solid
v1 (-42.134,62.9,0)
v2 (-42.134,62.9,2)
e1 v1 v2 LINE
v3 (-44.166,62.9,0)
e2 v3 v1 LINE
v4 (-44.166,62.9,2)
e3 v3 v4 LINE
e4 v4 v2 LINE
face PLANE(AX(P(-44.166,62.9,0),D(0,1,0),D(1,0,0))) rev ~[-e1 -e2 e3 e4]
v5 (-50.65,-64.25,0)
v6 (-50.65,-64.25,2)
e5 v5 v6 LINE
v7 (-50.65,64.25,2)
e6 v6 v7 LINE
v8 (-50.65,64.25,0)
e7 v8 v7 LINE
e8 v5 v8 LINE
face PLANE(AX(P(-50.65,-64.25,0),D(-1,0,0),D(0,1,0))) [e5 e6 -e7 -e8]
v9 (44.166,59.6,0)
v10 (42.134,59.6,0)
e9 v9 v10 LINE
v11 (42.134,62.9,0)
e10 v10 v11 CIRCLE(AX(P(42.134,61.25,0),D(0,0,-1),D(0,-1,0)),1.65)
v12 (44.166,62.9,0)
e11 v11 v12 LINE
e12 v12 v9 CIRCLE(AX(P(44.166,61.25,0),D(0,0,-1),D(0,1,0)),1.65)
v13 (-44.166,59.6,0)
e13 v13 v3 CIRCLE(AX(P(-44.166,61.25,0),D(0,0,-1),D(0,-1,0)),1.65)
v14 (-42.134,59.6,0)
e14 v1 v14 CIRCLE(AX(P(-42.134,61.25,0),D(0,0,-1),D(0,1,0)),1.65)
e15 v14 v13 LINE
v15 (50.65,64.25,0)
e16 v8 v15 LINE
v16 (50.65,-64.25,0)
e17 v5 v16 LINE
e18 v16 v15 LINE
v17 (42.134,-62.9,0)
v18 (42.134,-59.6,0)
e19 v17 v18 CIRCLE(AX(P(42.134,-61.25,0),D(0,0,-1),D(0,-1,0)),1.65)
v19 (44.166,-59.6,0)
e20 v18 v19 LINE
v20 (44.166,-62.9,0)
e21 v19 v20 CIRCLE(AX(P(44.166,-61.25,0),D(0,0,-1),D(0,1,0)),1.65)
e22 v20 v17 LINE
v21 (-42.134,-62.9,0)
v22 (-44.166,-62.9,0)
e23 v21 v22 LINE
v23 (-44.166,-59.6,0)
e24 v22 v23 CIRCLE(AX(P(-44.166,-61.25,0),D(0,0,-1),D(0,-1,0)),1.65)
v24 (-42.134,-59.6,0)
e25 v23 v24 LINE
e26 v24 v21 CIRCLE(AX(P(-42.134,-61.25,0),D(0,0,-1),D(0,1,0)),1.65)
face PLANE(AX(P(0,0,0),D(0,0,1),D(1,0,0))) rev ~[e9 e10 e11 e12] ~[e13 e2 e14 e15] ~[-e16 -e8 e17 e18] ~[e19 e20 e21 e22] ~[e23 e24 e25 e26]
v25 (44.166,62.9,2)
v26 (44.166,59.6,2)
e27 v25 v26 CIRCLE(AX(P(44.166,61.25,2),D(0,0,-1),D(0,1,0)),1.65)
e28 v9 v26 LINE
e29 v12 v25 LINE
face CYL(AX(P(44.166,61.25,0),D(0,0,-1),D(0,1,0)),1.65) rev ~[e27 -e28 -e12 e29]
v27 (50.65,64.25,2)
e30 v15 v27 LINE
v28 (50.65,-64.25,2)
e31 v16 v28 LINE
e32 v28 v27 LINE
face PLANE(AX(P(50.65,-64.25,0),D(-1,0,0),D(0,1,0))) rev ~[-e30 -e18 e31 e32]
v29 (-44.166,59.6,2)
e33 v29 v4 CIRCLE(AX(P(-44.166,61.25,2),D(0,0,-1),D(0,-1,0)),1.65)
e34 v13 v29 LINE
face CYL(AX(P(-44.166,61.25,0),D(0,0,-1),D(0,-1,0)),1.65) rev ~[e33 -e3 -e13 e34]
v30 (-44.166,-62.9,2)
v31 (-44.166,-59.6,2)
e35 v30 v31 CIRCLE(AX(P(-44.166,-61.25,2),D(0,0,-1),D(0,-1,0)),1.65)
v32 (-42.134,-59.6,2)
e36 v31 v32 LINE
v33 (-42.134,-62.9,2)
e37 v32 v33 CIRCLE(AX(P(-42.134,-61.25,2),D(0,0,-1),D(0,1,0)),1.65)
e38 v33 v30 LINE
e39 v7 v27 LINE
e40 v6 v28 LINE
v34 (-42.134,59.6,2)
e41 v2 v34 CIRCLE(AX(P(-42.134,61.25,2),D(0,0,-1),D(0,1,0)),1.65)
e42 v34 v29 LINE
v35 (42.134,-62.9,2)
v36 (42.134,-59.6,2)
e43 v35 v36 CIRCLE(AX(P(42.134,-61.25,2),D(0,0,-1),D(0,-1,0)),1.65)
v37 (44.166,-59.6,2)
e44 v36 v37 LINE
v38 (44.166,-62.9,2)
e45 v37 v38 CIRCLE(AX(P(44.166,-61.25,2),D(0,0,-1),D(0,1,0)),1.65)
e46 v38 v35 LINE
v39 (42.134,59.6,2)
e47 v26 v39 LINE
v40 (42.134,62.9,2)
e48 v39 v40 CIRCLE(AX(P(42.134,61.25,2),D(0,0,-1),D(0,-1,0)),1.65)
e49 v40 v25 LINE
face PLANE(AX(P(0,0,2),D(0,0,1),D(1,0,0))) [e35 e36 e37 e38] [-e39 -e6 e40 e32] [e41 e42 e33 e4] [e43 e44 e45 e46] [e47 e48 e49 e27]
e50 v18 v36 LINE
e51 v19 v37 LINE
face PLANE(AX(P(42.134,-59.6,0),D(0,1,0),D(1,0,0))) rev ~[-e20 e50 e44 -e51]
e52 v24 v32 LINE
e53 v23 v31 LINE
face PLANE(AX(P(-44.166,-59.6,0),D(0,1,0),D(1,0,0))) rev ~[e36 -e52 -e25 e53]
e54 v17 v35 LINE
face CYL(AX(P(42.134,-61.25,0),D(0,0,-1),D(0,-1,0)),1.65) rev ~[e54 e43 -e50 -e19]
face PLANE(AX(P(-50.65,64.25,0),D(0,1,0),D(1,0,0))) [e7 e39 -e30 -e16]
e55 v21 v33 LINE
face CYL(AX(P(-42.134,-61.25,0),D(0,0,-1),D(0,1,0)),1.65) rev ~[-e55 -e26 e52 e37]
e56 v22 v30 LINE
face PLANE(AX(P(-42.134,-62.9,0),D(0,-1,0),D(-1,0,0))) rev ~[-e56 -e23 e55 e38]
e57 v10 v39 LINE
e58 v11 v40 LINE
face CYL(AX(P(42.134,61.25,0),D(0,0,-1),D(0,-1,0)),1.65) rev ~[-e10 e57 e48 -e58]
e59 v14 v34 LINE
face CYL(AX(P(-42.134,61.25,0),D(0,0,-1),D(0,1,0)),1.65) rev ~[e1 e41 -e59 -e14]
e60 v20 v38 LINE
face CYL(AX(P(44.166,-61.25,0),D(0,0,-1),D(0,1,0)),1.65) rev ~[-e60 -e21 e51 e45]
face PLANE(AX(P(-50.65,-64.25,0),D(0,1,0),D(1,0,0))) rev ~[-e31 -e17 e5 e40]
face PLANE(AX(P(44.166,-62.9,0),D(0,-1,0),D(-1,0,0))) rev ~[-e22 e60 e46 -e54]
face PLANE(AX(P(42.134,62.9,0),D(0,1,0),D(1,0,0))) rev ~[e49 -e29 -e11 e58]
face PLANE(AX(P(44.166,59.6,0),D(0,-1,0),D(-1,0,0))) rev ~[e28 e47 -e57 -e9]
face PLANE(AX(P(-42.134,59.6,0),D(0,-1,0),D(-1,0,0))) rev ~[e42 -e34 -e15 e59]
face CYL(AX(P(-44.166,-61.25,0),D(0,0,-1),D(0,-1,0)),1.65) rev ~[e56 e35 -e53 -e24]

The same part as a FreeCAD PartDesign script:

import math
import FreeCAD as App
import Part
import Sketcher
from FreeCAD import Vector
Q = App.Units.Quantity

doc = App.newDocument("Part")
body = doc.addObject("PartDesign::Body", "Body")

# Sketch on XY plane
sketch1 = body.newObject("Sketcher::SketchObject", "Sketch")
sketch1.AttachmentSupport = (doc.getObject("XY_Plane"), [""])
sketch1.MapMode = "FlatFace"
sketch1.addGeometry(Part.LineSegment(Vector(-50.65, 64.25, 0), Vector(-50.65, -64.25, 0)), False)
sketch1.addGeometry(Part.LineSegment(Vector(-50.65, -64.25, 0), Vector(50.65, -64.25, 0)), False)
sketch1.addGeometry(Part.LineSegment(Vector(50.65, -64.25, 0), Vector(50.65, 64.25, 0)), False)
sketch1.addGeometry(Part.LineSegment(Vector(50.65, 64.25, 0), Vector(-50.65, 64.25, 0)), False)
sketch1.addGeometry(Part.ArcOfCircle(Part.Circle(Vector(-44.166, -61.25, 0), Vector(0, 0, 1), 1.65), math.radians(90), math.radians(270)), False)
sketch1.addGeometry(Part.LineSegment(Vector(-44.166, -59.6, 0), Vector(-42.134, -59.6, 0)), False)
sketch1.addGeometry(Part.ArcOfCircle(Part.Circle(Vector(-42.134, -61.25, 0), Vector(0, 0, 1), 1.65), math.radians(-90), math.radians(90)), False)
sketch1.addGeometry(Part.LineSegment(Vector(-42.134, -62.9, 0), Vector(-44.166, -62.9, 0)), False)
sketch1.addGeometry(Part.ArcOfCircle(Part.Circle(Vector(42.134, -61.25, 0), Vector(0, 0, 1), 1.65), math.radians(90), math.radians(270)), False)
sketch1.addGeometry(Part.LineSegment(Vector(42.134, -59.6, 0), Vector(44.166, -59.6, 0)), False)
sketch1.addGeometry(Part.ArcOfCircle(Part.Circle(Vector(44.166, -61.25, 0), Vector(0, 0, 1), 1.65), math.radians(-90), math.radians(90)), False)
sketch1.addGeometry(Part.LineSegment(Vector(44.166, -62.9, 0), Vector(42.134, -62.9, 0)), False)
sketch1.addGeometry(Part.ArcOfCircle(Part.Circle(Vector(-44.166, 61.25, 0), Vector(0, 0, 1), 1.65), math.radians(90), math.radians(270)), False)
sketch1.addGeometry(Part.LineSegment(Vector(-44.166, 62.9, 0), Vector(-42.134, 62.9, 0)), False)
sketch1.addGeometry(Part.ArcOfCircle(Part.Circle(Vector(-42.134, 61.25, 0), Vector(0, 0, 1), 1.65), math.radians(-90), math.radians(90)), False)
sketch1.addGeometry(Part.LineSegment(Vector(-42.134, 59.6, 0), Vector(-44.166, 59.6, 0)), False)
sketch1.addGeometry(Part.ArcOfCircle(Part.Circle(Vector(42.134, 61.25, 0), Vector(0, 0, 1), 1.65), math.radians(90), math.radians(270)), False)
sketch1.addGeometry(Part.LineSegment(Vector(42.134, 62.9, 0), Vector(44.166, 62.9, 0)), False)
sketch1.addGeometry(Part.ArcOfCircle(Part.Circle(Vector(44.166, 61.25, 0), Vector(0, 0, 1), 1.65), math.radians(-90), math.radians(90)), False)
sketch1.addGeometry(Part.LineSegment(Vector(44.166, 59.6, 0), Vector(42.134, 59.6, 0)), False)
sketch1.addConstraint(Sketcher.Constraint("Coincident", 0, 2, 1, 1))
sketch1.addConstraint(Sketcher.Constraint("Coincident", 1, 2, 2, 1))
sketch1.addConstraint(Sketcher.Constraint("Coincident", 2, 2, 3, 1))
sketch1.addConstraint(Sketcher.Constraint("Coincident", 3, 2, 0, 1))
sketch1.addConstraint(Sketcher.Constraint("Tangent", 4, 1, 5, 1))
sketch1.addConstraint(Sketcher.Constraint("Tangent", 5, 2, 6, 2))
sketch1.addConstraint(Sketcher.Constraint("Tangent", 6, 1, 7, 1))
sketch1.addConstraint(Sketcher.Constraint("Tangent", 7, 2, 4, 2))
sketch1.addConstraint(Sketcher.Constraint("Tangent", 8, 1, 9, 1))
sketch1.addConstraint(Sketcher.Constraint("Tangent", 9, 2, 10, 2))
sketch1.addConstraint(Sketcher.Constraint("Tangent", 10, 1, 11, 1))
sketch1.addConstraint(Sketcher.Constraint("Tangent", 11, 2, 8, 2))
sketch1.addConstraint(Sketcher.Constraint("Tangent", 12, 1, 13, 1))
sketch1.addConstraint(Sketcher.Constraint("Tangent", 13, 2, 14, 2))
sketch1.addConstraint(Sketcher.Constraint("Tangent", 14, 1, 15, 1))
sketch1.addConstraint(Sketcher.Constraint("Tangent", 15, 2, 12, 2))
sketch1.addConstraint(Sketcher.Constraint("Tangent", 16, 1, 17, 1))
sketch1.addConstraint(Sketcher.Constraint("Tangent", 17, 2, 18, 2))
sketch1.addConstraint(Sketcher.Constraint("Tangent", 18, 1, 19, 1))
sketch1.addConstraint(Sketcher.Constraint("Tangent", 19, 2, 16, 2))
sketch1.addConstraint(Sketcher.Constraint("Vertical", 0))
sketch1.addConstraint(Sketcher.Constraint("Horizontal", 1))
sketch1.addConstraint(Sketcher.Constraint("Vertical", 2))
sketch1.addConstraint(Sketcher.Constraint("Horizontal", 3))
sketch1.addConstraint(Sketcher.Constraint("Horizontal", 5))
sketch1.addConstraint(Sketcher.Constraint("Horizontal", 7))
sketch1.addConstraint(Sketcher.Constraint("Horizontal", 9))
sketch1.addConstraint(Sketcher.Constraint("Horizontal", 11))
sketch1.addConstraint(Sketcher.Constraint("Horizontal", 13))
sketch1.addConstraint(Sketcher.Constraint("Horizontal", 15))
sketch1.addConstraint(Sketcher.Constraint("Horizontal", 17))
sketch1.addConstraint(Sketcher.Constraint("Horizontal", 19))
sketch1.addConstraint(Sketcher.Constraint("Equal", 6, 8))
sketch1.addConstraint(Sketcher.Constraint("Equal", 10, 12))
sketch1.addConstraint(Sketcher.Constraint("Equal", 14, 16))
sketch1.addConstraint(Sketcher.Constraint("Symmetric", 10, 3, 12, 3, -1, 1))
sketch1.addConstraint(Sketcher.Constraint("Symmetric", 6, 3, 16, 3, -1, 1))
sketch1.addConstraint(Sketcher.Constraint("Symmetric", 0, 2, 2, 2, -1, 1))
sketch1.addConstraint(Sketcher.Constraint("Symmetric", 6, 3, 8, 3, -2))
sketch1.addConstraint(Sketcher.Constraint("Vertical", 4, 3, 12, 3))
sketch1.addConstraint(Sketcher.Constraint("Vertical", 6, 3, 14, 3))
sketch1.addConstraint(Sketcher.Constraint("Vertical", 10, 3, 18, 3))
sketch1.addConstraint(Sketcher.Constraint("Radius", 4, Q("1.65 mm")))
sketch1.addConstraint(Sketcher.Constraint("DistanceX", 1, 1, 1, 2, Q("101.3 mm")))
sketch1.addConstraint(Sketcher.Constraint("DistanceY", 0, 2, 0, 1, Q("128.5 mm")))
sketch1.addConstraint(Sketcher.Constraint("DistanceY", 0, 2, 4, 3, Q("3 mm")))
sketch1.addConstraint(Sketcher.Constraint("DistanceX", 4, 3, 8, 3, Q("86.3 mm")))
sketch1.addConstraint(Sketcher.Constraint("DistanceX", 5, 1, 5, 2, Q("2.032 mm")))
pad1 = body.newObject("PartDesign::Pad", "Pad")
pad1.Profile = sketch1
pad1.Length = 2

doc.recompute()
